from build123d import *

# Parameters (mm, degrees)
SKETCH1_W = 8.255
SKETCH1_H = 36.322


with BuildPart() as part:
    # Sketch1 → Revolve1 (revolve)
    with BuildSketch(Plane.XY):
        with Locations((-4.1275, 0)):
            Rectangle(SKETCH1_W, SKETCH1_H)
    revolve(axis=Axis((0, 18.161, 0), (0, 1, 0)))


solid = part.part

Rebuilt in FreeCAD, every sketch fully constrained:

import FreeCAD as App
import Part
import Sketcher

V = App.Vector
Q = App.Units.Quantity


def add_polygon(sketch, points):
    """Adds a closed chain of lines whose ends are joined by coincident constraints."""
    first, n = sketch.GeometryCount, len(points)
    for a, b in zip(points, points[1:] + points[:1]):
        sketch.addGeometry(Part.LineSegment(App.Vector(*a, 0), App.Vector(*b, 0)), False)
    for i in range(n):
        sketch.addConstraint(Sketcher.Constraint("Coincident", first + i, 2, first + (i + 1) % n, 1))

doc = App.newDocument("Part")
body = doc.addObject("PartDesign::Body", "Body")

sketch1 = body.newObject("Sketcher::SketchObject", "Sketch")
sketch1.AttachmentSupport = (doc.getObject("XY_Plane"), [""])
sketch1.MapMode = "FlatFace"
add_polygon(sketch1, [(-8, 18), (-8, -18), (0, -18), (0, 18)])
sketch1.addConstraint([
    Sketcher.Constraint("Vertical", 0),
    Sketcher.Constraint("Horizontal", 1),
    Sketcher.Constraint("Vertical", 2),
    Sketcher.Constraint("Horizontal", 3),
    Sketcher.Constraint("Symmetric", 1, 2, 2, 2, -1, 1),
    Sketcher.Constraint("DistanceY", 0, 2, 0, 1, Q("1.43 in")),
    Sketcher.Constraint("DistanceX", 1, 1, 1, 2, Q("0.325 in")),
])
revolution = body.newObject("PartDesign::Revolution", "Revolution")
revolution.Profile = sketch1
revolution.ReferenceAxis = (sketch1, ["V_Axis"])
revolution.Angle = 360

doc.recompute()
